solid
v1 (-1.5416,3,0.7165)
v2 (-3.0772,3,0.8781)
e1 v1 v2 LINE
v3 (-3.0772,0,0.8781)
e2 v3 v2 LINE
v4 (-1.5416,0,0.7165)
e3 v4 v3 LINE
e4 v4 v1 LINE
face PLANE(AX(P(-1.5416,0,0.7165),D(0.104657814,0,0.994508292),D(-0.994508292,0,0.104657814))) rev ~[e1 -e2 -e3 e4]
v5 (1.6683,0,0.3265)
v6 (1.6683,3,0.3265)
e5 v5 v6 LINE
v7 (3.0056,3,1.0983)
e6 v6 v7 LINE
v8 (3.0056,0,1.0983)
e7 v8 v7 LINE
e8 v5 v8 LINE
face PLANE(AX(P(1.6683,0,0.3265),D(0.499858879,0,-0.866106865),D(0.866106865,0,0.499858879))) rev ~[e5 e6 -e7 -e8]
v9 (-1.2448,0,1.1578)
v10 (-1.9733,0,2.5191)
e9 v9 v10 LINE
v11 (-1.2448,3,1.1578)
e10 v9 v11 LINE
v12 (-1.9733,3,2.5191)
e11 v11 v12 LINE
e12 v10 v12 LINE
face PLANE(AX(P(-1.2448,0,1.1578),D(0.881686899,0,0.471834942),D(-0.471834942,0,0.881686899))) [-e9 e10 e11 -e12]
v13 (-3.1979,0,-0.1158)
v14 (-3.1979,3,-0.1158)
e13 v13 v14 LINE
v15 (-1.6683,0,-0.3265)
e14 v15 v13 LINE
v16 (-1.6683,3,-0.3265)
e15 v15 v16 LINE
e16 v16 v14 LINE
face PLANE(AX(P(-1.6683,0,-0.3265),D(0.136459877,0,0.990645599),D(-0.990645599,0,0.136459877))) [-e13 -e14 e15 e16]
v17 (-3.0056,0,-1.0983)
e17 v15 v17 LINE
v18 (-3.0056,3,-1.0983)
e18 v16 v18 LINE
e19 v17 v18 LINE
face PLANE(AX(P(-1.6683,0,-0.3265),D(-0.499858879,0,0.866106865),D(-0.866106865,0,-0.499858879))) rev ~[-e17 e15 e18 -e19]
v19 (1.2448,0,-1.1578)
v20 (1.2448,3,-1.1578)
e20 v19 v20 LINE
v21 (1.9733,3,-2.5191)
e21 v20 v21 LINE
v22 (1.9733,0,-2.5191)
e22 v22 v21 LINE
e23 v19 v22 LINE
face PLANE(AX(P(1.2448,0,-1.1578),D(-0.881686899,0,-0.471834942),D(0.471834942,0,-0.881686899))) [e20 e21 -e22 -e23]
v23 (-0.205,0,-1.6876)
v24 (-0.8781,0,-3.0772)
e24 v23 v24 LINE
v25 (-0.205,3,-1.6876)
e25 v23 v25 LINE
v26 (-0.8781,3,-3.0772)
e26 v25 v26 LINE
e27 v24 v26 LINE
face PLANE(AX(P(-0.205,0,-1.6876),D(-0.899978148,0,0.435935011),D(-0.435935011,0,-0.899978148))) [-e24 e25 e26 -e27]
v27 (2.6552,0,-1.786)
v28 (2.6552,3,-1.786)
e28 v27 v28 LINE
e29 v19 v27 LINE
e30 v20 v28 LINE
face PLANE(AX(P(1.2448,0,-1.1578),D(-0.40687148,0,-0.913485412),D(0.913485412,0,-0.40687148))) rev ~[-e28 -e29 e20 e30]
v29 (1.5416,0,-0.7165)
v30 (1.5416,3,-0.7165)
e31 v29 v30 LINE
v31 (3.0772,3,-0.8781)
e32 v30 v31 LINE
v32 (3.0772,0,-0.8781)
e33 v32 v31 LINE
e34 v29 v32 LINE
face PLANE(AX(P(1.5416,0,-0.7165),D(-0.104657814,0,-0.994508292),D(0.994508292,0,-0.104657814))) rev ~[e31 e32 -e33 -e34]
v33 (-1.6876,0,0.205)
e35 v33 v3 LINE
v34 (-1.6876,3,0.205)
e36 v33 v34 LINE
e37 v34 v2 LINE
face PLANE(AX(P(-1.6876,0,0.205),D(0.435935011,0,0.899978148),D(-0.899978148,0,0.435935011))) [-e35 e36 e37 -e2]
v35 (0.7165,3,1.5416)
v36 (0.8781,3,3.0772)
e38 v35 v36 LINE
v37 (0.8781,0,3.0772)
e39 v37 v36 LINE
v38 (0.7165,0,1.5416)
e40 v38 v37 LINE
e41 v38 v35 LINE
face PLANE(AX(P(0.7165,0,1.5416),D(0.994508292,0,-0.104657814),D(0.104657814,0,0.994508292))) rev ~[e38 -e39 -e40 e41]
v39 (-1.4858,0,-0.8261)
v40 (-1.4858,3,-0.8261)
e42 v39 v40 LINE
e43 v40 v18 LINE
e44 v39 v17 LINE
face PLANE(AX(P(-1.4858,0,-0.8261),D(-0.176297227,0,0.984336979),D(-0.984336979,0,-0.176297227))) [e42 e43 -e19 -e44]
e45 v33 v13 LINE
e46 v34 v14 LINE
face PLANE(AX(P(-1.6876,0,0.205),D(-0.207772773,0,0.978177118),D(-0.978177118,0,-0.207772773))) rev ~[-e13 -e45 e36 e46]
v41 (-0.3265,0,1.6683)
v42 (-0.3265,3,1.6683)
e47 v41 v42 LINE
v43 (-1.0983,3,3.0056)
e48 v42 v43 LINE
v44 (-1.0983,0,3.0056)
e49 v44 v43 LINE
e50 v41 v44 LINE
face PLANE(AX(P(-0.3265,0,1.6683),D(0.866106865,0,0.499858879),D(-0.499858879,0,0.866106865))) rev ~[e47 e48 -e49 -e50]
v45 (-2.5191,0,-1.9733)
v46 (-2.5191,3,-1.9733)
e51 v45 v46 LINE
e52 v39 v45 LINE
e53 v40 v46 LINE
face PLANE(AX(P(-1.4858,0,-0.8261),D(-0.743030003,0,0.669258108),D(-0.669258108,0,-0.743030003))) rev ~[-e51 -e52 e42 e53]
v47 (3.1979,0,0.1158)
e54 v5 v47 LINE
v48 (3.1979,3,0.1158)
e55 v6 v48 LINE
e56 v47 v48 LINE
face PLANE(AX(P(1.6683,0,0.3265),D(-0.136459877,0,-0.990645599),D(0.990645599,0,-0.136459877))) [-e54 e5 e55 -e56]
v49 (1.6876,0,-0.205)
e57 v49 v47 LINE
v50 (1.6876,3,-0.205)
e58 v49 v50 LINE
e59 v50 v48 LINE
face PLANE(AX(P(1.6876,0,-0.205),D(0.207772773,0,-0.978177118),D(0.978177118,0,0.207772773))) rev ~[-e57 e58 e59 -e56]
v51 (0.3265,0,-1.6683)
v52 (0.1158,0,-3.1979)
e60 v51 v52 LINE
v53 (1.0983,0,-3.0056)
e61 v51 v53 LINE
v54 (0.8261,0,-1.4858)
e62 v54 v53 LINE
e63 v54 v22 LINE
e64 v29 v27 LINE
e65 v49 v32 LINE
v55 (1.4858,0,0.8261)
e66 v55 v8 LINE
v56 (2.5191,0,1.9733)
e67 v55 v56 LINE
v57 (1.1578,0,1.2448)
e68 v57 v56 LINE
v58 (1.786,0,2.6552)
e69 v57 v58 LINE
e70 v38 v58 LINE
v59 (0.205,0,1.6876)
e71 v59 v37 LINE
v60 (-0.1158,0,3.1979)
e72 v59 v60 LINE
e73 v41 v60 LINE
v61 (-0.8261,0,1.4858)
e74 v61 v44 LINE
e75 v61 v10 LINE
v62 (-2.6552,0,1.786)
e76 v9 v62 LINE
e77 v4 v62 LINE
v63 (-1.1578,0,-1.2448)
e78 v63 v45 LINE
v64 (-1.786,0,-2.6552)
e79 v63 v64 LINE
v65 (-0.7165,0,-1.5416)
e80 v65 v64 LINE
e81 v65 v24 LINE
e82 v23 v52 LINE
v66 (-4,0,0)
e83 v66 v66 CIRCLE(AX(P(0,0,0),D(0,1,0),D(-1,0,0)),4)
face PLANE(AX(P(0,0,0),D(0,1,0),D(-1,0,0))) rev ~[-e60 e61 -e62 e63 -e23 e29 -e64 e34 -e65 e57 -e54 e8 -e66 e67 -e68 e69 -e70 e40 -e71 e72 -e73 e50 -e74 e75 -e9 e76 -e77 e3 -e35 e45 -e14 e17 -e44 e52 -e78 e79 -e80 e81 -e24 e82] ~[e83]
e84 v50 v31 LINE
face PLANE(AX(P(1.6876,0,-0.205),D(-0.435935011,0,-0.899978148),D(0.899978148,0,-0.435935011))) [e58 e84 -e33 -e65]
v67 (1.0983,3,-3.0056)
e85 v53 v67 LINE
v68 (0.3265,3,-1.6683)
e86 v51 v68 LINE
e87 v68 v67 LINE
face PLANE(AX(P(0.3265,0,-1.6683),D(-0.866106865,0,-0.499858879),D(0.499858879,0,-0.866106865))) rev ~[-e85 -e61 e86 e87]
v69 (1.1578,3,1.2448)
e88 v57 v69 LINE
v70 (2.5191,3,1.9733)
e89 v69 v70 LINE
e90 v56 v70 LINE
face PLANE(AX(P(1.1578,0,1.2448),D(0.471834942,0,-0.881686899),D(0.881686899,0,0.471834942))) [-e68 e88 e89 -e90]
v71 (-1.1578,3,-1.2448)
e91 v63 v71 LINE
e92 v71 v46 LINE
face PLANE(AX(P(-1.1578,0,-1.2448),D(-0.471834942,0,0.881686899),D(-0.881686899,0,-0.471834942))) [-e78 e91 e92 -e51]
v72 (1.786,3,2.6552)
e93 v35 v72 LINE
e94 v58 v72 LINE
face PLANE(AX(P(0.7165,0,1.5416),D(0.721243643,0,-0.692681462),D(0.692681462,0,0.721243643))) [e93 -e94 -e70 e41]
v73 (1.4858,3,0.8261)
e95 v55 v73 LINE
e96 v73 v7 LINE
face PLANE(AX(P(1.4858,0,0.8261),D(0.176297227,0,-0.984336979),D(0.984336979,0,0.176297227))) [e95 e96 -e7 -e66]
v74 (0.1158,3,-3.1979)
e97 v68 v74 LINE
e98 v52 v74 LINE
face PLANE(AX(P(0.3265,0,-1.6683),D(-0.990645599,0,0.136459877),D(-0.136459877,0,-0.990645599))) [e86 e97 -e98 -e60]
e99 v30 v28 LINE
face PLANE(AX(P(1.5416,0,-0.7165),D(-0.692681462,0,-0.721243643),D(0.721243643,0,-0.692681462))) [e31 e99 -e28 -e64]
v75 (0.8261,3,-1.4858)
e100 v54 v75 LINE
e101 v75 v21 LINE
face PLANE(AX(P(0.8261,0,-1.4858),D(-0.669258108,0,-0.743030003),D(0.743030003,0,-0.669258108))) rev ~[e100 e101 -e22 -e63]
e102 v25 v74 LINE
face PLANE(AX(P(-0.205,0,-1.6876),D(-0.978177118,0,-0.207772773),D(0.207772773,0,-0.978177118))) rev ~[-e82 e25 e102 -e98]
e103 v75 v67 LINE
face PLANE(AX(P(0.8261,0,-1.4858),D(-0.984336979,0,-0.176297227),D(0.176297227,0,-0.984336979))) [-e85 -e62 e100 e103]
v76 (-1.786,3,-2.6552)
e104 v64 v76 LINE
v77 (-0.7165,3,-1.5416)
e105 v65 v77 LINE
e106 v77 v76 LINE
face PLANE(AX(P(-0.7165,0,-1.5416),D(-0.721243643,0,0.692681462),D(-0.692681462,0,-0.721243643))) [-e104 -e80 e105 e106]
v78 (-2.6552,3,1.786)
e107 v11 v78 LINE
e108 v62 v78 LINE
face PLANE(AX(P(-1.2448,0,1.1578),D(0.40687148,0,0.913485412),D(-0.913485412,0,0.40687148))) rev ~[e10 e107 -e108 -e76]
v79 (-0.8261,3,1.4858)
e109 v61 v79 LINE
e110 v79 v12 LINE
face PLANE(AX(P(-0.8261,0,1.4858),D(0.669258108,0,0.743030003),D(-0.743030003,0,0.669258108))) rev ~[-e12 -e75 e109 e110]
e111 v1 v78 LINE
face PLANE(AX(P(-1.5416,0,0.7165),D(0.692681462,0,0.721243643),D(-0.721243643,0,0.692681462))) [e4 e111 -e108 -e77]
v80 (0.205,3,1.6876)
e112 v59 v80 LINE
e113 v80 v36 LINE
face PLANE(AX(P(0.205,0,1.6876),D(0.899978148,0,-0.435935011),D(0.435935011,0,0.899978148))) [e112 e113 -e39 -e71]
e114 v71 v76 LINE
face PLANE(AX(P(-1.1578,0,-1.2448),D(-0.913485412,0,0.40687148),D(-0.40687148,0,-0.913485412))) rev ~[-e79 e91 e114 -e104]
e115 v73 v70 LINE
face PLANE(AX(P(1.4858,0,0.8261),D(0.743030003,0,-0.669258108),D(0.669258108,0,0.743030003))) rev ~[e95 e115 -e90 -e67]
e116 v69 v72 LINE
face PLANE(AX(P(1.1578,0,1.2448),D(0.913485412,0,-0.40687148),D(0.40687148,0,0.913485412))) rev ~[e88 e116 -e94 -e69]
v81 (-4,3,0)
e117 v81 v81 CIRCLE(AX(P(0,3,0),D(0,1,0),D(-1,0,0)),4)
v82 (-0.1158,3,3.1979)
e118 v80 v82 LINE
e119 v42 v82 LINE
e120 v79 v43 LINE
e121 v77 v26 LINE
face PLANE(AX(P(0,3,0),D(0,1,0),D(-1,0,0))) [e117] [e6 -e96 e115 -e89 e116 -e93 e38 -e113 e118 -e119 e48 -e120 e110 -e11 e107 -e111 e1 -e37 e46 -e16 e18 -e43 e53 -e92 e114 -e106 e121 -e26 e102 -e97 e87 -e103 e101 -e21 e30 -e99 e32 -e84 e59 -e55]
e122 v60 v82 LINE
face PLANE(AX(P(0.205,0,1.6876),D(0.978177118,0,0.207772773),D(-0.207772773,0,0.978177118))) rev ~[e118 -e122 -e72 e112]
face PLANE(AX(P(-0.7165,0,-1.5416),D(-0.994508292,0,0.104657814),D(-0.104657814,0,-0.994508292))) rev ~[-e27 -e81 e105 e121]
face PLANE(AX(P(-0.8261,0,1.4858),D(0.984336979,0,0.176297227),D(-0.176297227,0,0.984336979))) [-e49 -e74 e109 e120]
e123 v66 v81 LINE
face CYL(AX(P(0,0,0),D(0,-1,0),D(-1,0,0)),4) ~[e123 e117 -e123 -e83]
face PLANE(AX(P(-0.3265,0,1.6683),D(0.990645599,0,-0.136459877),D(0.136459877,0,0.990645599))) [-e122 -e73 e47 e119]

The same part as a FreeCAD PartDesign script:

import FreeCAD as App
import Part
import Sketcher
Q = App.Units.Quantity


def add_polygon(sketch, points):
    """Adds a closed chain of lines whose ends are joined by coincident constraints."""
    first, n = sketch.GeometryCount, len(points)
    for a, b in zip(points, points[1:] + points[:1]):
        sketch.addGeometry(Part.LineSegment(App.Vector(*a, 0), App.Vector(*b, 0)), False)
    for i in range(n):
        sketch.addConstraint(Sketcher.Constraint("Coincident", first + i, 2, first + (i + 1) % n, 1))

doc = App.newDocument("Part")
body = doc.addObject("PartDesign::Body", "Body")

# Sketch on XZ plane
sketch1 = doc.addObject("Sketcher::SketchObject", "Sketch")
body.addObject(sketch1)
sketch1.AttachmentSupport = (doc.XZ_Plane, [""])
sketch1.MapMode = "FlatFace"
sketch1.addGeometry(Part.Circle(App.Vector(0, 0, 0), App.Vector(0, 0, 1), 4), False)  # 0
add_polygon(sketch1, [(-3, -1.1), (-1.5, -0.8), (-2.5, -2), (-1.2, -1.2), (-1.8, -2.7), (-0.7, -1.5), (-0.9, -3.1), (-0.2, -1.7), (0.1, -3.2), (0.3, -1.7), (1.1, -3), (0.8, -1.5), (2, -2.5), (1.2, -1.2), (2.7, -1.8), (1.5, -0.7), (3.1, -0.9), (1.7, -0.2), (3.2, 0.1), (1.7, 0.3), (3, 1.1), (1.5, 0.8), (2.5, 2), (1.2, 1.2), (1.8, 2.7), (0.7, 1.5), (0.9, 3.1), (0.2, 1.7), (-0.1, 3.2), (-0.3, 1.7), (-1.1, 3), (-0.8, 1.5), (-2, 2.5), (-1.2, 1.2), (-2.7, 1.8), (-1.5, 0.7), (-3.1, 0.9), (-1.7, 0.2), (-3.2, -0.1), (-1.7, -0.3)])  # lines 1-40
sketch1.addConstraint([
    Sketcher.Constraint("Coincident", 0, 3, -1, 1),
    Sketcher.Constraint("Symmetric", 1, 2, 21, 2, -1, 1),
    Sketcher.Constraint("Symmetric", 2, 2, 22, 2, -1, 1),
    Sketcher.Constraint("Symmetric", 3, 2, 23, 2, -1, 1),
    Sketcher.Constraint("Symmetric", 4, 2, 24, 2, -1, 1),
    Sketcher.Constraint("Symmetric", 5, 2, 25, 2, -1, 1),
    Sketcher.Constraint("Symmetric", 6, 2, 26, 2, -1, 1),
    Sketcher.Constraint("Symmetric", 7, 2, 27, 2, -1, 1),
    Sketcher.Constraint("Symmetric", 8, 2, 28, 2, -1, 1),
    Sketcher.Constraint("Symmetric", 9, 2, 29, 2, -1, 1),
    Sketcher.Constraint("Symmetric", 10, 2, 30, 2, -1, 1),
    Sketcher.Constraint("Symmetric", 11, 2, 31, 2, -1, 1),
    Sketcher.Constraint("Symmetric", 12, 2, 32, 2, -1, 1),
    Sketcher.Constraint("Symmetric", 13, 2, 33, 2, -1, 1),
    Sketcher.Constraint("Symmetric", 14, 2, 34, 2, -1, 1),
    Sketcher.Constraint("Symmetric", 15, 2, 35, 2, -1, 1),
    Sketcher.Constraint("Symmetric", 16, 2, 36, 2, -1, 1),
    Sketcher.Constraint("Symmetric", 17, 2, 37, 2, -1, 1),
    Sketcher.Constraint("Symmetric", 18, 2, 38, 2, -1, 1),
    Sketcher.Constraint("Symmetric", 19, 2, 39, 2, -1, 1),
    Sketcher.Constraint("Symmetric", 20, 2, 40, 2, -1, 1),
    Sketcher.Constraint("Perpendicular", 1, 11),
    Sketcher.Constraint("Perpendicular", 2, 12),
    Sketcher.Constraint("Perpendicular", 3, 13),
    Sketcher.Constraint("Perpendicular", 4, 14),
    Sketcher.Constraint("Perpendicular", 5, 15),
    Sketcher.Constraint("Perpendicular", 6, 16),
    Sketcher.Constraint("Perpendicular", 7, 17),
    Sketcher.Constraint("Perpendicular", 8, 18),
    Sketcher.Constraint("Perpendicular", 9, 19),
    Sketcher.Constraint("Perpendicular", 10, 20),
    Sketcher.Constraint("Equal", 1, 2),
    Sketcher.Constraint("Equal", 2, 3),
    Sketcher.Constraint("Equal", 3, 4),
    Sketcher.Constraint("Equal", 4, 5),
    Sketcher.Constraint("Equal", 5, 6),
    Sketcher.Constraint("Equal", 6, 7),
    Sketcher.Constraint("Equal", 7, 8),
    Sketcher.Constraint("Equal", 8, 9),
    Sketcher.Constraint("Equal", 9, 10),
    Sketcher.Constraint("Equal", 10, 11),
    Sketcher.Constraint("Equal", 11, 12),
    Sketcher.Constraint("Equal", 12, 13),
    Sketcher.Constraint("Equal", 13, 14),
    Sketcher.Constraint("Equal", 14, 15),
    Sketcher.Constraint("Equal", 15, 16),
    Sketcher.Constraint("Equal", 16, 17),
    Sketcher.Constraint("Equal", 17, 18),
    Sketcher.Constraint("Equal", 18, 19),
    Sketcher.Constraint("Equal", 19, 20),
    Sketcher.Constraint("Diameter", 0, Q("8 mm")),
    Sketcher.Constraint("Angle", 2, Q("-132.0098 deg")),
    Sketcher.Constraint("Angle", 10, Q("-60.0093 deg")),
    Sketcher.Constraint("DistanceY", 3, 2, 1, 2, Q("0.4187 mm")),
    Sketcher.Constraint("Distance", 1, Q("1.544 mm")),
    Sketcher.Constraint("DistanceY", 1, 2, -1, 1, Q("0.826 mm")),
    Sketcher.Constraint("DistanceX", 2, 2, -1, 1, Q("2.519 mm")),
    Sketcher.Constraint("DistanceX", 4, 2, -1, 1, Q("1.786 mm")),
    Sketcher.Constraint("DistanceX", 6, 2, -1, 1, Q("0.878 mm")),
    Sketcher.Constraint("DistanceX", 7, 2, -1, 1, Q("0.205 mm")),
    Sketcher.Constraint("DistanceY", 8, 2, -1, 1, Q("3.198 mm")),
    Sketcher.Constraint("DistanceY", 6, 2, 4, 2, Q("0.422 mm")),
])
pad1 = doc.addObject("PartDesign::Pad", "Pad")
body.addObject(pad1)
pad1.Profile = sketch1
pad1.Length = 3
pad1.Reversed = True

doc.recompute()
